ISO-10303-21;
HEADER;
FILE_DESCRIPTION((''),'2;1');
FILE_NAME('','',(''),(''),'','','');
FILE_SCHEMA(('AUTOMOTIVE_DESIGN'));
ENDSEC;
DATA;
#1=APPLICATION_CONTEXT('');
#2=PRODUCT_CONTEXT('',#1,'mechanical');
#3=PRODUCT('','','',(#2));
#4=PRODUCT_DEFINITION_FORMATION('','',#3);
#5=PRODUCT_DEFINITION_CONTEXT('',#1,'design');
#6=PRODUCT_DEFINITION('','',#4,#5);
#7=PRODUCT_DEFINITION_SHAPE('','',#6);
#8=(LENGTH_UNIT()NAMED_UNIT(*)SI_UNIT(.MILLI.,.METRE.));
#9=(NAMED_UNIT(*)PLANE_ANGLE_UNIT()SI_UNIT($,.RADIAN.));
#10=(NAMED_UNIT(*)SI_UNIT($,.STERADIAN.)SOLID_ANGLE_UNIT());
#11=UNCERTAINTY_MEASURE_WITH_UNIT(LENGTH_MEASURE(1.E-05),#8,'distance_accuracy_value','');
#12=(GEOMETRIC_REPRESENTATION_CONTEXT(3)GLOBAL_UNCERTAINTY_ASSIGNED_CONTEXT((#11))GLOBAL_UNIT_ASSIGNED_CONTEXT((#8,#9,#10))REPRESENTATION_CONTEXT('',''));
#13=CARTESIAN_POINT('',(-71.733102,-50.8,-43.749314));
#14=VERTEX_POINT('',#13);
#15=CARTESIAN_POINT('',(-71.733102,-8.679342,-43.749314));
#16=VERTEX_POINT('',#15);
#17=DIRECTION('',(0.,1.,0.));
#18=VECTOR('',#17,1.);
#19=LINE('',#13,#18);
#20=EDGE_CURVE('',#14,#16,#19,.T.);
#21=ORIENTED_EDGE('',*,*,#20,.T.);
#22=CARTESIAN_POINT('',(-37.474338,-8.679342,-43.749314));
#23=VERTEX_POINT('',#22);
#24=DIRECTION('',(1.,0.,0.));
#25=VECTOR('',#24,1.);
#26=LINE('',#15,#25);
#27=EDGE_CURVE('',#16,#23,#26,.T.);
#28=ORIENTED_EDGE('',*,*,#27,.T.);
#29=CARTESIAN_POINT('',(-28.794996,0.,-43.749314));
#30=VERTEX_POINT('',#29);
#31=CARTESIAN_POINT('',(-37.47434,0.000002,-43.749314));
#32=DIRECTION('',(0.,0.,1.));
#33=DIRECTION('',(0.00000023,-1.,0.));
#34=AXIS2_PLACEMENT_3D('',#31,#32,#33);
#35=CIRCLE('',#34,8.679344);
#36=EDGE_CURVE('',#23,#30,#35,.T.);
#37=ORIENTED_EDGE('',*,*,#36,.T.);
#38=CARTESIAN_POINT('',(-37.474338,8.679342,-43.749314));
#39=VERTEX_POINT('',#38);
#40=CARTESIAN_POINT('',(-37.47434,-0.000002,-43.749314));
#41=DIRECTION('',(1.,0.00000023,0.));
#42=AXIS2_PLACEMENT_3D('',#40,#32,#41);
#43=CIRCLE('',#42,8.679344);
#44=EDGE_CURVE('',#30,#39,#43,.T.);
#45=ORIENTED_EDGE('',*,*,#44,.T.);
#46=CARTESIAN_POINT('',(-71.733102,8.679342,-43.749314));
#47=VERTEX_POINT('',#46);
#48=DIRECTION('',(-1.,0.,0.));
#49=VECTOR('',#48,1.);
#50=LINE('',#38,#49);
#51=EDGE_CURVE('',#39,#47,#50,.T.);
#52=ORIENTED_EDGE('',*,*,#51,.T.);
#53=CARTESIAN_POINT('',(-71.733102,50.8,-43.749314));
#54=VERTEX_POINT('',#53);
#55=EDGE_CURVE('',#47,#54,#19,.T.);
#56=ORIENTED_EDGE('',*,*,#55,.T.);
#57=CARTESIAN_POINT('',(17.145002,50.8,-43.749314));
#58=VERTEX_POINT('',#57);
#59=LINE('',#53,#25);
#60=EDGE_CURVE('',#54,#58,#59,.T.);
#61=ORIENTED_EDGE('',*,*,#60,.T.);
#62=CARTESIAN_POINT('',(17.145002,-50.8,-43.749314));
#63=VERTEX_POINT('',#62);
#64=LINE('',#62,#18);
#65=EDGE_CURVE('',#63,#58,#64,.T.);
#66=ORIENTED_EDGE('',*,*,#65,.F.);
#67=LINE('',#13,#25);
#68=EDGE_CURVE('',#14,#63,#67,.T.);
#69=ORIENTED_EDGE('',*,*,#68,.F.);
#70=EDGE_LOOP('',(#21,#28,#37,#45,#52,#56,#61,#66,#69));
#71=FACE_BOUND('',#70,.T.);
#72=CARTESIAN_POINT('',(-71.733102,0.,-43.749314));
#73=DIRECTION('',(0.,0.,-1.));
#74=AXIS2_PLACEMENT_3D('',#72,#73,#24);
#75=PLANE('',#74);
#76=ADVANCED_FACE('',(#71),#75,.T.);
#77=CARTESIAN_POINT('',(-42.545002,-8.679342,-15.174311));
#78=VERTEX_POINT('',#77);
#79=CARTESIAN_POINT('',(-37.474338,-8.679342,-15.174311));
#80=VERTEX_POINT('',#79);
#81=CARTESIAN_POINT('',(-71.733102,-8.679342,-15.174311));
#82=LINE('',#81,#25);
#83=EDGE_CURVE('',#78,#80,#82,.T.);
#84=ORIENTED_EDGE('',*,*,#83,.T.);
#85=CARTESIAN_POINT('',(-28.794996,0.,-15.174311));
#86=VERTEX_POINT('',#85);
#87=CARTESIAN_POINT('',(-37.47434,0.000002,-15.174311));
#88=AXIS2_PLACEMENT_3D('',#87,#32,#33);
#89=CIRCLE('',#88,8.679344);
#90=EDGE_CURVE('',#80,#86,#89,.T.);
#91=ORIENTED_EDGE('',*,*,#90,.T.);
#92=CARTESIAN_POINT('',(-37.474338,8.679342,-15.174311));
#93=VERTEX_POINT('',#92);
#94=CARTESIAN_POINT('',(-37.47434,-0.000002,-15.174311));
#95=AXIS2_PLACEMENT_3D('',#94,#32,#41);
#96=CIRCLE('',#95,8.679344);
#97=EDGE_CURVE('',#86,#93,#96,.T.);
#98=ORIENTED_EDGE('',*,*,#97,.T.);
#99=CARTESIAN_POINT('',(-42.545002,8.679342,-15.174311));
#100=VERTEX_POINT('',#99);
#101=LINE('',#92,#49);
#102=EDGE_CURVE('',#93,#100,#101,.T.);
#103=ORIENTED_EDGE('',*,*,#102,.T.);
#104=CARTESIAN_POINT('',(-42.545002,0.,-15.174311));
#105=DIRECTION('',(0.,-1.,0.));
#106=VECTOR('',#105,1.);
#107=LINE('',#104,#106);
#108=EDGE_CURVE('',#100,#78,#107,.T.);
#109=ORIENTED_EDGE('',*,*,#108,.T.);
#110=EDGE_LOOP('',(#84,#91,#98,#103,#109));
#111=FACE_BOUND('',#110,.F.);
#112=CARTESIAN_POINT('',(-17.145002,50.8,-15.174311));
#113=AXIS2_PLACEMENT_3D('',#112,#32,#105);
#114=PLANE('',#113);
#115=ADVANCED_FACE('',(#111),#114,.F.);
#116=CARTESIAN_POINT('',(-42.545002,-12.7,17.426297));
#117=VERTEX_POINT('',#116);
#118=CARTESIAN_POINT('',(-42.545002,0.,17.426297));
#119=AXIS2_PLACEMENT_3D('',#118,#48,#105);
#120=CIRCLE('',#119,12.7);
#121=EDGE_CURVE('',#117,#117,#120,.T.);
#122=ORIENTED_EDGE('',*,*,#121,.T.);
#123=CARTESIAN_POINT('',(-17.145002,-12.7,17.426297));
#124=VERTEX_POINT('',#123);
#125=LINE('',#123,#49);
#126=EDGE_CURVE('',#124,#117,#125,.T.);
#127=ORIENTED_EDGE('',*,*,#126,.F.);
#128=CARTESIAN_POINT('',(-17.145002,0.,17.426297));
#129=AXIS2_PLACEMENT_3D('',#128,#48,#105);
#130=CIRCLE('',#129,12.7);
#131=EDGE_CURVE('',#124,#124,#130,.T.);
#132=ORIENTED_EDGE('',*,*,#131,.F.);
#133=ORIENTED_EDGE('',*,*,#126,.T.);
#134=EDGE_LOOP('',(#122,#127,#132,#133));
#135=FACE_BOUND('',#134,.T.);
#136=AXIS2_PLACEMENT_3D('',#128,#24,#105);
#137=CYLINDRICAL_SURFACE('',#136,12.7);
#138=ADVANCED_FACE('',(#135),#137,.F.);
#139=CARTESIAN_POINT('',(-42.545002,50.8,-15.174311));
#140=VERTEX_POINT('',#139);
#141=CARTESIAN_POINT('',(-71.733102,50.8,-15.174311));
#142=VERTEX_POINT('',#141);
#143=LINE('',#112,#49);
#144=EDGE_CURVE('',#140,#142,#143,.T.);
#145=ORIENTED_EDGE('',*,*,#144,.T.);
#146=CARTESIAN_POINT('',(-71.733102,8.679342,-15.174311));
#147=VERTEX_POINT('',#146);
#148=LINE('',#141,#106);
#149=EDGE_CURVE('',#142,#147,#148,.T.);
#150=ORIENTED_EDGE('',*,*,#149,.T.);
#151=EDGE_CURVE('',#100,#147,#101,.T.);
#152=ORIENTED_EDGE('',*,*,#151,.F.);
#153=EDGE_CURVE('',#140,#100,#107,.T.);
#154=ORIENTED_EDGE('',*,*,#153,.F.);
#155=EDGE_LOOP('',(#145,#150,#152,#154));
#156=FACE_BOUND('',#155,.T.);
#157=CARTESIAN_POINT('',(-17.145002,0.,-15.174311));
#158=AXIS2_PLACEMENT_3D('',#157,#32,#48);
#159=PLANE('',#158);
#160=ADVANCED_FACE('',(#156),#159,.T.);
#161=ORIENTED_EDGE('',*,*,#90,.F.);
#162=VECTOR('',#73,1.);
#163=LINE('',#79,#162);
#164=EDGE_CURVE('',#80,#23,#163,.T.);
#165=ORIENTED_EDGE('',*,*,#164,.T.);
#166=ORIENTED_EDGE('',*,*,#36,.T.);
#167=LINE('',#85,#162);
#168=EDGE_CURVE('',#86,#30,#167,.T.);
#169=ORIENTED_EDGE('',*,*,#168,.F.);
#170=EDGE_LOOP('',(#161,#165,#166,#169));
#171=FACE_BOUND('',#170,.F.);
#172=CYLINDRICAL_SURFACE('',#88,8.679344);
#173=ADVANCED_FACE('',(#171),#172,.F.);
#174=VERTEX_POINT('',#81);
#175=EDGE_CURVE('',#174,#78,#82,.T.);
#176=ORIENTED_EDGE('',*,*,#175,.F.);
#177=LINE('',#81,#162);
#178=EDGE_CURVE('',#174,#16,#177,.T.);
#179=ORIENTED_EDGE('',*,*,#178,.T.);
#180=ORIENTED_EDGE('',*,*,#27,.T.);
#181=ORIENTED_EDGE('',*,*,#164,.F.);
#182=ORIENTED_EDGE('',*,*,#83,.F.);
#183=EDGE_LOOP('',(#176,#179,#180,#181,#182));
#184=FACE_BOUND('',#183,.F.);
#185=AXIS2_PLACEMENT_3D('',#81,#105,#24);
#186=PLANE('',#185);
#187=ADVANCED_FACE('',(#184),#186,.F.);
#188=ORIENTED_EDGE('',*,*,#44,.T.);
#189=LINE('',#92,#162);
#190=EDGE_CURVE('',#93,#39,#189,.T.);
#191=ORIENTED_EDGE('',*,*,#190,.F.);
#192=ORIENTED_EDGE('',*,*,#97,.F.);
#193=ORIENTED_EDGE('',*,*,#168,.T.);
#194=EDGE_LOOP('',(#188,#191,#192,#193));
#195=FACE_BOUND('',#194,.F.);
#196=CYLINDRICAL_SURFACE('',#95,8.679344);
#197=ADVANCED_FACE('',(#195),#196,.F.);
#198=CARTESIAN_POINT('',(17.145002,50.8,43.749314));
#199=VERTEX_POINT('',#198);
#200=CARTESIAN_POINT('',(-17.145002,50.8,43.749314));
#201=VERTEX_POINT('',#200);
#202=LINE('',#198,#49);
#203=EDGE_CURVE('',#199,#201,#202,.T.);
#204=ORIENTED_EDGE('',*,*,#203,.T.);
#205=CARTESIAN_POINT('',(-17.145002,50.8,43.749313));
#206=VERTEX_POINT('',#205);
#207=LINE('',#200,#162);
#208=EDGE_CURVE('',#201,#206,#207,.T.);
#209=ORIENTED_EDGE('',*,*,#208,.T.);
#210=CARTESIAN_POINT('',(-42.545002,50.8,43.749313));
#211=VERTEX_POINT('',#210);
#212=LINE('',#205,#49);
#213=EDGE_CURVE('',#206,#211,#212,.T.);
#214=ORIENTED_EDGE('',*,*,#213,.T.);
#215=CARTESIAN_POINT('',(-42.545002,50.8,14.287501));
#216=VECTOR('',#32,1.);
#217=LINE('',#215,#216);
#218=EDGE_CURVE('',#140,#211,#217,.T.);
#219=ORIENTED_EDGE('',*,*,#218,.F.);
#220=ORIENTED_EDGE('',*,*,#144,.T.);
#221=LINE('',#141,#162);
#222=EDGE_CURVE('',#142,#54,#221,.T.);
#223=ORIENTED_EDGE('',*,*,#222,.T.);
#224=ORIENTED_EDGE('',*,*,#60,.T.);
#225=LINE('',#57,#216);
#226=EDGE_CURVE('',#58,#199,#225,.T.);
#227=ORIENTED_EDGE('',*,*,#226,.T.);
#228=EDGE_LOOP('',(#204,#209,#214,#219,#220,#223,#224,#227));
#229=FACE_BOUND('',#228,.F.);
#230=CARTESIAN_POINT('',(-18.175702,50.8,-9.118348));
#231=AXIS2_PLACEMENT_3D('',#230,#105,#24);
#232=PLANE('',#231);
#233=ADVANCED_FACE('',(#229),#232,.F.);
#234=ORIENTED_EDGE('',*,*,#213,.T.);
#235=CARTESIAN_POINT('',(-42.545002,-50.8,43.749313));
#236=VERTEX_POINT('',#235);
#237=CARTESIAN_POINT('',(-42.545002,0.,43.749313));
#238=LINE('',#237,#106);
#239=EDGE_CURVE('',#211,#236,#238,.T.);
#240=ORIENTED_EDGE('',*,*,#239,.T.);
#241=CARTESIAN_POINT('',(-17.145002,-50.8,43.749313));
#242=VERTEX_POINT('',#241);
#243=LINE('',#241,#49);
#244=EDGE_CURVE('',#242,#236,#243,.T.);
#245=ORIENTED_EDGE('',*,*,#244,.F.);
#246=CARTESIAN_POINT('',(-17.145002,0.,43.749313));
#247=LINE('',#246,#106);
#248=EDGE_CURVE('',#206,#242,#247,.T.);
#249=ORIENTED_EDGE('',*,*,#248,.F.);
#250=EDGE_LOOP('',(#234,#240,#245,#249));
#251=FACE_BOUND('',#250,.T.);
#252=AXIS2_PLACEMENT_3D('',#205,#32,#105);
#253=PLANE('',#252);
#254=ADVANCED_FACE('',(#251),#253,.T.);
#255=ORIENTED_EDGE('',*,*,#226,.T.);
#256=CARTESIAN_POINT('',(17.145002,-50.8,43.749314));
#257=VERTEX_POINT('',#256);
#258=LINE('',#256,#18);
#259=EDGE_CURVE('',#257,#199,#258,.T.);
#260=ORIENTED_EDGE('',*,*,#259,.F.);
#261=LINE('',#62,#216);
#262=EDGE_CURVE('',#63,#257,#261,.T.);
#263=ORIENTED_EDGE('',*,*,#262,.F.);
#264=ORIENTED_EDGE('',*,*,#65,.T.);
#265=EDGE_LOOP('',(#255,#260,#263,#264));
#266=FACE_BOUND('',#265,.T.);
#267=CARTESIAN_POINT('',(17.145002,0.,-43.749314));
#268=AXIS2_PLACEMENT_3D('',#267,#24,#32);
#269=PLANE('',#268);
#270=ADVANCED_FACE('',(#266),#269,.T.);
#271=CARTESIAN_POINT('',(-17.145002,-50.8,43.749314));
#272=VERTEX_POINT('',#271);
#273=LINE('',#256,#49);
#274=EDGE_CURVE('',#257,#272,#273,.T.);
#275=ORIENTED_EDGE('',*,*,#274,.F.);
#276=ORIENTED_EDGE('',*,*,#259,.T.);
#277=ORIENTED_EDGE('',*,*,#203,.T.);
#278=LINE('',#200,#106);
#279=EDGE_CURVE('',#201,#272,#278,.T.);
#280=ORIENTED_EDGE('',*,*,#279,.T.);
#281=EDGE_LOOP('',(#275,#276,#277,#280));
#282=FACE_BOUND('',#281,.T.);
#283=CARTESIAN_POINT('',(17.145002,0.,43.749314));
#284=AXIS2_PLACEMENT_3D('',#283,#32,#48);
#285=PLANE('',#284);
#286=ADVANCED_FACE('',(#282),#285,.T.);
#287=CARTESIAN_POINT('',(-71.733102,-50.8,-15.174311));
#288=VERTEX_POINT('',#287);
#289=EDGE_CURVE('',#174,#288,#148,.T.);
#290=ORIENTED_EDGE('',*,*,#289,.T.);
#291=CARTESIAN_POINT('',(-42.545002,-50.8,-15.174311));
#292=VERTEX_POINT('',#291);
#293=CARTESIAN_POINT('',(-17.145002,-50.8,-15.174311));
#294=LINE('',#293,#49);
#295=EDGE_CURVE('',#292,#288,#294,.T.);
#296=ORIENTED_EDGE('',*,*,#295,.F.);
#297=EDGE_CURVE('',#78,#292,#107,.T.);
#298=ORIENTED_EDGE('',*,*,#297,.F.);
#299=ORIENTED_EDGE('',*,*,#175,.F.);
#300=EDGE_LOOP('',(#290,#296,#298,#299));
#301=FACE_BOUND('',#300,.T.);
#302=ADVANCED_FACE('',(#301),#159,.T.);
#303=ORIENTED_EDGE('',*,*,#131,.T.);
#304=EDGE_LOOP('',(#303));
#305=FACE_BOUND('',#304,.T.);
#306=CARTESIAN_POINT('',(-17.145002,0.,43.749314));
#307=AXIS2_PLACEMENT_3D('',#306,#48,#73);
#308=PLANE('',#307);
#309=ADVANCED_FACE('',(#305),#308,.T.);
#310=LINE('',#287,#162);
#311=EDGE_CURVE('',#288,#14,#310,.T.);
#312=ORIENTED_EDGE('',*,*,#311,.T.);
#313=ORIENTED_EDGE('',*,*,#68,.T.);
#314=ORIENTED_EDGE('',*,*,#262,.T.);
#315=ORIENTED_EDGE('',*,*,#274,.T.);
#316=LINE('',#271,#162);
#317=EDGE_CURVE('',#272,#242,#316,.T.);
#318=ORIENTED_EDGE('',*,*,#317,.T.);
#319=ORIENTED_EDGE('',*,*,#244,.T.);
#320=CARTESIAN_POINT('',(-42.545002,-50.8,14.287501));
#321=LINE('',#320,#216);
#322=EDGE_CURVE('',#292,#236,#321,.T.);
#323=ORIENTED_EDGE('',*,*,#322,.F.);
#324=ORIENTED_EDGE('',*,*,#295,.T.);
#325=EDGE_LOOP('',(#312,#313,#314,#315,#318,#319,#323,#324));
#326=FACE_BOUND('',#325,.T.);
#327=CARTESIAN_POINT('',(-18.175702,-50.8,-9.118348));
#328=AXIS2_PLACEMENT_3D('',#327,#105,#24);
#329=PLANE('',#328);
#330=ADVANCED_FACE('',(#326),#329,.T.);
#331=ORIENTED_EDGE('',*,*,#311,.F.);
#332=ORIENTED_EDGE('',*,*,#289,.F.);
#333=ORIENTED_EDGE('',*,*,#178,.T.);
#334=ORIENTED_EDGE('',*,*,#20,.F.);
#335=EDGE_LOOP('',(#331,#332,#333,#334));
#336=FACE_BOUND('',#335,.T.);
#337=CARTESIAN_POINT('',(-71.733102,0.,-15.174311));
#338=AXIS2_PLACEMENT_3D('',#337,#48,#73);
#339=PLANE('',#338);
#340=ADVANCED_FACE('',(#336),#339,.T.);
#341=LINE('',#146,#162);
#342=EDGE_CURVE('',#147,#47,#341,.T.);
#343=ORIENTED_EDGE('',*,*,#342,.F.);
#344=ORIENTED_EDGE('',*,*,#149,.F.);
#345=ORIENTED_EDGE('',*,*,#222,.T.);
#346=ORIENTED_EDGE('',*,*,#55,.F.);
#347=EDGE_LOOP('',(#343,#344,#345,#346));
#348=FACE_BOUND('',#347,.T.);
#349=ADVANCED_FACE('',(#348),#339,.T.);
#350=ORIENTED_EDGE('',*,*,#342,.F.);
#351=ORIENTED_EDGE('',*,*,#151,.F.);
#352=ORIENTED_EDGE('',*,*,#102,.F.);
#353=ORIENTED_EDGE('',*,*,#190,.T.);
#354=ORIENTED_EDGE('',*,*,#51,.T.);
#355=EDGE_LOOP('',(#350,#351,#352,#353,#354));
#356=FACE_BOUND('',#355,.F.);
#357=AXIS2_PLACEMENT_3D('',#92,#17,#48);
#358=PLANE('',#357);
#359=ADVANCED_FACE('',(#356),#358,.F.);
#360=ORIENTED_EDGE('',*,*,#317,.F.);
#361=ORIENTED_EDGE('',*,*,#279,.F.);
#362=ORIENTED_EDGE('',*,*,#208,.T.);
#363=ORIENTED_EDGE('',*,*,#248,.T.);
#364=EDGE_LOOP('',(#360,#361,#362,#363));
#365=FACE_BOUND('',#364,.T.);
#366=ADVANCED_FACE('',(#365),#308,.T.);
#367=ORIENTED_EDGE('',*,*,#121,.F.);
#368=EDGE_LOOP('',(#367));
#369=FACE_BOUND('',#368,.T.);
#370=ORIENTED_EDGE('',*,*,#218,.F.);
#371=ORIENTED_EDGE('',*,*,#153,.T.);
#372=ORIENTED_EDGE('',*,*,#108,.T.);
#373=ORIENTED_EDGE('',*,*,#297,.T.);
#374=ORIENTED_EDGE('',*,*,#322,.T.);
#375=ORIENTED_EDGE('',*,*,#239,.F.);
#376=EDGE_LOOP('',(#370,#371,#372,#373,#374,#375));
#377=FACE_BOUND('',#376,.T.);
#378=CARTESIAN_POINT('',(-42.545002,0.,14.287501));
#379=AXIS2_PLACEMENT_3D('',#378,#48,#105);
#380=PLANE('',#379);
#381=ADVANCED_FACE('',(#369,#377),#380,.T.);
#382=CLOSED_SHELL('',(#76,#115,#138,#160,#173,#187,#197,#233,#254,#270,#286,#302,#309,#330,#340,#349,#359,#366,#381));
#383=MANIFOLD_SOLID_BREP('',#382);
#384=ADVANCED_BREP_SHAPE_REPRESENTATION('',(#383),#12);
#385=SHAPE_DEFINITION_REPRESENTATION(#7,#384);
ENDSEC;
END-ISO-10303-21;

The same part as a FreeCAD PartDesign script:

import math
import FreeCAD as App
import Part
import Sketcher

V = App.Vector
Q = App.Units.Quantity

doc = App.newDocument("Part")
params = doc.addObject("Spreadsheet::Sheet", "Params")
for row, (alias, value) in enumerate([
    ("sketch1_width", "1.3500002 in"),
    ("sketch1_height", "1.1250001 in"),
    ("pad1_length", "4 in"),
    ("sketch3_diameter", "1 in"),
    ("sketch3_width", "4 in"),
    ("pad2_length", "1 in"),
], start=1):
    params.set(f"A{row}", alias)
    params.set(f"B{row}", "=" + value)
    params.setAlias(f"B{row}", alias)

body = doc.addObject("PartDesign::Body", "Body")

# Sketch on XZ plane
sketch1 = doc.addObject("Sketcher::SketchObject", "Sketch")
body.addObject(sketch1)
sketch1.AttachmentSupport = (doc.XZ_Plane, [""])
sketch1.MapMode = "FlatFace"
sketch1.addGeometry([
    Part.LineSegment(V(17, 44, 0), V(-17, 44, 0)),  # 0
    Part.LineSegment(V(-17, 44, 0), V(-17, -15, 0)),  # 1
    Part.LineSegment(V(-17, -15, 0), V(-72, -15, 0)),  # 2
    Part.LineSegment(V(-72, -15, 0), V(-72, -44, 0)),  # 3
    Part.LineSegment(V(-72, -44, 0), V(17, -44, 0)),  # 4
    Part.LineSegment(V(17, -44, 0), V(17, 44, 0)),  # 5
], False)
sketch1.addConstraint([
    Sketcher.Constraint("Coincident", 0, 2, 1, 1),
    Sketcher.Constraint("Coincident", 1, 2, 2, 1),
    Sketcher.Constraint("Coincident", 2, 2, 3, 1),
    Sketcher.Constraint("Coincident", 3, 2, 4, 1),
    Sketcher.Constraint("Coincident", 4, 2, 5, 1),
    Sketcher.Constraint("Coincident", 5, 2, 0, 1),
    Sketcher.Constraint("Horizontal", 0),
    Sketcher.Constraint("Vertical", 1),
    Sketcher.Constraint("Horizontal", 2),
    Sketcher.Constraint("Vertical", 3),
    Sketcher.Constraint("Horizontal", 4),
    Sketcher.Constraint("Vertical", 5),
    Sketcher.Constraint("Symmetric", 0, 2, 4, 2, -1, 1),
    Sketcher.Constraint("DistanceX", 0, 2, 0, 1, Q("1.3500002 in")),
    Sketcher.Constraint("DistanceY", 3, 2, 3, 1, Q("1.1250001 in")),
    Sketcher.Constraint("DistanceX", 2, 2, 2, 1, 54.5881),
    Sketcher.Constraint("DistanceY", 1, 2, 1, 1, 58.923625),
])
sketch1.setExpression("Constraints[13]", "Params.sketch1_width")
sketch1.setExpression("Constraints[14]", "Params.sketch1_height")
pad1 = doc.addObject("PartDesign::Pad", "Pad")
body.addObject(pad1)
pad1.Profile = sketch1
pad1.setExpression("Length", "Params.pad1_length")
pad1.Midplane = True

# Sketch on XY plane
sketch2 = doc.addObject("Sketcher::SketchObject", "Sketch001")
body.addObject(sketch2)
sketch2.AttachmentSupport = (doc.XY_Plane, [""])
sketch2.MapMode = "FlatFace"
sketch2.AttachmentOffset = App.Placement(V(0, 0, -15.174311), App.Rotation())
sketch2.addGeometry([
    Part.LineSegment(V(-37, 9, 0), V(-72, 9, 0)),  # 0
    Part.LineSegment(V(-72, 9, 0), V(-72, -9, 0)),  # 1
    Part.LineSegment(V(-72, -9, 0), V(-37, -9, 0)),  # 2
    Part.ArcOfCircle(Part.Circle(V(-37, 0, 0), V(0, 0, 1), 9), math.radians(-90), math.radians(0)),  # 3
    Part.ArcOfCircle(Part.Circle(V(-37, 0, 0), V(0, 0, 1), 9), math.radians(0), math.radians(90)),  # 4
], False)
sketch2.addConstraint([
    Sketcher.Constraint("Coincident", 0, 2, 1, 1),
    Sketcher.Constraint("Coincident", 1, 2, 2, 1),
    Sketcher.Constraint("Tangent", 2, 2, 3, 1),
    Sketcher.Constraint("Tangent", 3, 2, 4, 1),
    Sketcher.Constraint("Tangent", 4, 2, 0, 1),
    Sketcher.Constraint("Horizontal", 0),
    Sketcher.Constraint("Vertical", 1),
    Sketcher.Constraint("Horizontal", 2),
    Sketcher.Constraint("Equal", 3, 4),
    Sketcher.Constraint("PointOnObject", 3, 3, -1),
    Sketcher.Constraint("PointOnObject", 3, 2, -1),
    Sketcher.Constraint("Radius", 3, 8.679344),
    Sketcher.Constraint("DistanceX", 0, 2, 0, 1, 34.258764),
    Sketcher.Constraint("DistanceX", 3, 3, -1, 1, 37.47434),
])
pocket1 = doc.addObject("PartDesign::Pocket", "Pocket")
body.addObject(pocket1)
pocket1.Profile = sketch2
pocket1.Type = "ThroughAll"

# Sketch on YZ plane
sketch3 = doc.addObject("Sketcher::SketchObject", "Sketch002")
body.addObject(sketch3)
sketch3.AttachmentSupport = (doc.YZ_Plane, [""])
sketch3.MapMode = "FlatFace"
sketch3.AttachmentOffset = App.Placement(V(0, 0, -0.6750001 * 25.4), App.Rotation())
sketch3.addGeometry([
    Part.LineSegment(V(51, 44, 0), V(51, -15, 0)),  # 0
    Part.LineSegment(V(51, -15, 0), V(-51, -15, 0)),  # 1
    Part.LineSegment(V(-51, -15, 0), V(-51, 44, 0)),  # 2
    Part.LineSegment(V(-51, 44, 0), V(51, 44, 0)),  # 3
    Part.Circle(V(0, 17, 0), V(0, 0, 1), 13),  # 4
], False)
sketch3.addConstraint([
    Sketcher.Constraint("Coincident", 0, 2, 1, 1),
    Sketcher.Constraint("Coincident", 1, 2, 2, 1),
    Sketcher.Constraint("Coincident", 2, 2, 3, 1),
    Sketcher.Constraint("Coincident", 3, 2, 0, 1),
    Sketcher.Constraint("Vertical", 0),
    Sketcher.Constraint("Horizontal", 1),
    Sketcher.Constraint("Vertical", 2),
    Sketcher.Constraint("Horizontal", 3),
    Sketcher.Constraint("PointOnObject", 4, 3, -2),
    Sketcher.Constraint("Diameter", 4, Q("1 in")),
    Sketcher.Constraint("DistanceX", 1, 2, 1, 1, Q("4 in")),
    Sketcher.Constraint("DistanceX", -1, 1, 0, 2, Q("2 in")),
    Sketcher.Constraint("DistanceY", 0, 2, 0, 1, 58.923625),
    Sketcher.Constraint("DistanceY", 0, 2, -1, 1, 15.174311),
    Sketcher.Constraint("DistanceY", 0, 2, 4, 3, 32.600608),
])
sketch3.setExpression("Constraints[9]", "Params.sketch3_diameter")
sketch3.setExpression("Constraints[10]", "Params.sketch3_width")
pad2 = doc.addObject("PartDesign::Pad", "Pad001")
body.addObject(pad2)
pad2.Profile = sketch3
pad2.setExpression("Length", "Params.pad2_length")
pad2.Reversed = True

doc.recompute()
